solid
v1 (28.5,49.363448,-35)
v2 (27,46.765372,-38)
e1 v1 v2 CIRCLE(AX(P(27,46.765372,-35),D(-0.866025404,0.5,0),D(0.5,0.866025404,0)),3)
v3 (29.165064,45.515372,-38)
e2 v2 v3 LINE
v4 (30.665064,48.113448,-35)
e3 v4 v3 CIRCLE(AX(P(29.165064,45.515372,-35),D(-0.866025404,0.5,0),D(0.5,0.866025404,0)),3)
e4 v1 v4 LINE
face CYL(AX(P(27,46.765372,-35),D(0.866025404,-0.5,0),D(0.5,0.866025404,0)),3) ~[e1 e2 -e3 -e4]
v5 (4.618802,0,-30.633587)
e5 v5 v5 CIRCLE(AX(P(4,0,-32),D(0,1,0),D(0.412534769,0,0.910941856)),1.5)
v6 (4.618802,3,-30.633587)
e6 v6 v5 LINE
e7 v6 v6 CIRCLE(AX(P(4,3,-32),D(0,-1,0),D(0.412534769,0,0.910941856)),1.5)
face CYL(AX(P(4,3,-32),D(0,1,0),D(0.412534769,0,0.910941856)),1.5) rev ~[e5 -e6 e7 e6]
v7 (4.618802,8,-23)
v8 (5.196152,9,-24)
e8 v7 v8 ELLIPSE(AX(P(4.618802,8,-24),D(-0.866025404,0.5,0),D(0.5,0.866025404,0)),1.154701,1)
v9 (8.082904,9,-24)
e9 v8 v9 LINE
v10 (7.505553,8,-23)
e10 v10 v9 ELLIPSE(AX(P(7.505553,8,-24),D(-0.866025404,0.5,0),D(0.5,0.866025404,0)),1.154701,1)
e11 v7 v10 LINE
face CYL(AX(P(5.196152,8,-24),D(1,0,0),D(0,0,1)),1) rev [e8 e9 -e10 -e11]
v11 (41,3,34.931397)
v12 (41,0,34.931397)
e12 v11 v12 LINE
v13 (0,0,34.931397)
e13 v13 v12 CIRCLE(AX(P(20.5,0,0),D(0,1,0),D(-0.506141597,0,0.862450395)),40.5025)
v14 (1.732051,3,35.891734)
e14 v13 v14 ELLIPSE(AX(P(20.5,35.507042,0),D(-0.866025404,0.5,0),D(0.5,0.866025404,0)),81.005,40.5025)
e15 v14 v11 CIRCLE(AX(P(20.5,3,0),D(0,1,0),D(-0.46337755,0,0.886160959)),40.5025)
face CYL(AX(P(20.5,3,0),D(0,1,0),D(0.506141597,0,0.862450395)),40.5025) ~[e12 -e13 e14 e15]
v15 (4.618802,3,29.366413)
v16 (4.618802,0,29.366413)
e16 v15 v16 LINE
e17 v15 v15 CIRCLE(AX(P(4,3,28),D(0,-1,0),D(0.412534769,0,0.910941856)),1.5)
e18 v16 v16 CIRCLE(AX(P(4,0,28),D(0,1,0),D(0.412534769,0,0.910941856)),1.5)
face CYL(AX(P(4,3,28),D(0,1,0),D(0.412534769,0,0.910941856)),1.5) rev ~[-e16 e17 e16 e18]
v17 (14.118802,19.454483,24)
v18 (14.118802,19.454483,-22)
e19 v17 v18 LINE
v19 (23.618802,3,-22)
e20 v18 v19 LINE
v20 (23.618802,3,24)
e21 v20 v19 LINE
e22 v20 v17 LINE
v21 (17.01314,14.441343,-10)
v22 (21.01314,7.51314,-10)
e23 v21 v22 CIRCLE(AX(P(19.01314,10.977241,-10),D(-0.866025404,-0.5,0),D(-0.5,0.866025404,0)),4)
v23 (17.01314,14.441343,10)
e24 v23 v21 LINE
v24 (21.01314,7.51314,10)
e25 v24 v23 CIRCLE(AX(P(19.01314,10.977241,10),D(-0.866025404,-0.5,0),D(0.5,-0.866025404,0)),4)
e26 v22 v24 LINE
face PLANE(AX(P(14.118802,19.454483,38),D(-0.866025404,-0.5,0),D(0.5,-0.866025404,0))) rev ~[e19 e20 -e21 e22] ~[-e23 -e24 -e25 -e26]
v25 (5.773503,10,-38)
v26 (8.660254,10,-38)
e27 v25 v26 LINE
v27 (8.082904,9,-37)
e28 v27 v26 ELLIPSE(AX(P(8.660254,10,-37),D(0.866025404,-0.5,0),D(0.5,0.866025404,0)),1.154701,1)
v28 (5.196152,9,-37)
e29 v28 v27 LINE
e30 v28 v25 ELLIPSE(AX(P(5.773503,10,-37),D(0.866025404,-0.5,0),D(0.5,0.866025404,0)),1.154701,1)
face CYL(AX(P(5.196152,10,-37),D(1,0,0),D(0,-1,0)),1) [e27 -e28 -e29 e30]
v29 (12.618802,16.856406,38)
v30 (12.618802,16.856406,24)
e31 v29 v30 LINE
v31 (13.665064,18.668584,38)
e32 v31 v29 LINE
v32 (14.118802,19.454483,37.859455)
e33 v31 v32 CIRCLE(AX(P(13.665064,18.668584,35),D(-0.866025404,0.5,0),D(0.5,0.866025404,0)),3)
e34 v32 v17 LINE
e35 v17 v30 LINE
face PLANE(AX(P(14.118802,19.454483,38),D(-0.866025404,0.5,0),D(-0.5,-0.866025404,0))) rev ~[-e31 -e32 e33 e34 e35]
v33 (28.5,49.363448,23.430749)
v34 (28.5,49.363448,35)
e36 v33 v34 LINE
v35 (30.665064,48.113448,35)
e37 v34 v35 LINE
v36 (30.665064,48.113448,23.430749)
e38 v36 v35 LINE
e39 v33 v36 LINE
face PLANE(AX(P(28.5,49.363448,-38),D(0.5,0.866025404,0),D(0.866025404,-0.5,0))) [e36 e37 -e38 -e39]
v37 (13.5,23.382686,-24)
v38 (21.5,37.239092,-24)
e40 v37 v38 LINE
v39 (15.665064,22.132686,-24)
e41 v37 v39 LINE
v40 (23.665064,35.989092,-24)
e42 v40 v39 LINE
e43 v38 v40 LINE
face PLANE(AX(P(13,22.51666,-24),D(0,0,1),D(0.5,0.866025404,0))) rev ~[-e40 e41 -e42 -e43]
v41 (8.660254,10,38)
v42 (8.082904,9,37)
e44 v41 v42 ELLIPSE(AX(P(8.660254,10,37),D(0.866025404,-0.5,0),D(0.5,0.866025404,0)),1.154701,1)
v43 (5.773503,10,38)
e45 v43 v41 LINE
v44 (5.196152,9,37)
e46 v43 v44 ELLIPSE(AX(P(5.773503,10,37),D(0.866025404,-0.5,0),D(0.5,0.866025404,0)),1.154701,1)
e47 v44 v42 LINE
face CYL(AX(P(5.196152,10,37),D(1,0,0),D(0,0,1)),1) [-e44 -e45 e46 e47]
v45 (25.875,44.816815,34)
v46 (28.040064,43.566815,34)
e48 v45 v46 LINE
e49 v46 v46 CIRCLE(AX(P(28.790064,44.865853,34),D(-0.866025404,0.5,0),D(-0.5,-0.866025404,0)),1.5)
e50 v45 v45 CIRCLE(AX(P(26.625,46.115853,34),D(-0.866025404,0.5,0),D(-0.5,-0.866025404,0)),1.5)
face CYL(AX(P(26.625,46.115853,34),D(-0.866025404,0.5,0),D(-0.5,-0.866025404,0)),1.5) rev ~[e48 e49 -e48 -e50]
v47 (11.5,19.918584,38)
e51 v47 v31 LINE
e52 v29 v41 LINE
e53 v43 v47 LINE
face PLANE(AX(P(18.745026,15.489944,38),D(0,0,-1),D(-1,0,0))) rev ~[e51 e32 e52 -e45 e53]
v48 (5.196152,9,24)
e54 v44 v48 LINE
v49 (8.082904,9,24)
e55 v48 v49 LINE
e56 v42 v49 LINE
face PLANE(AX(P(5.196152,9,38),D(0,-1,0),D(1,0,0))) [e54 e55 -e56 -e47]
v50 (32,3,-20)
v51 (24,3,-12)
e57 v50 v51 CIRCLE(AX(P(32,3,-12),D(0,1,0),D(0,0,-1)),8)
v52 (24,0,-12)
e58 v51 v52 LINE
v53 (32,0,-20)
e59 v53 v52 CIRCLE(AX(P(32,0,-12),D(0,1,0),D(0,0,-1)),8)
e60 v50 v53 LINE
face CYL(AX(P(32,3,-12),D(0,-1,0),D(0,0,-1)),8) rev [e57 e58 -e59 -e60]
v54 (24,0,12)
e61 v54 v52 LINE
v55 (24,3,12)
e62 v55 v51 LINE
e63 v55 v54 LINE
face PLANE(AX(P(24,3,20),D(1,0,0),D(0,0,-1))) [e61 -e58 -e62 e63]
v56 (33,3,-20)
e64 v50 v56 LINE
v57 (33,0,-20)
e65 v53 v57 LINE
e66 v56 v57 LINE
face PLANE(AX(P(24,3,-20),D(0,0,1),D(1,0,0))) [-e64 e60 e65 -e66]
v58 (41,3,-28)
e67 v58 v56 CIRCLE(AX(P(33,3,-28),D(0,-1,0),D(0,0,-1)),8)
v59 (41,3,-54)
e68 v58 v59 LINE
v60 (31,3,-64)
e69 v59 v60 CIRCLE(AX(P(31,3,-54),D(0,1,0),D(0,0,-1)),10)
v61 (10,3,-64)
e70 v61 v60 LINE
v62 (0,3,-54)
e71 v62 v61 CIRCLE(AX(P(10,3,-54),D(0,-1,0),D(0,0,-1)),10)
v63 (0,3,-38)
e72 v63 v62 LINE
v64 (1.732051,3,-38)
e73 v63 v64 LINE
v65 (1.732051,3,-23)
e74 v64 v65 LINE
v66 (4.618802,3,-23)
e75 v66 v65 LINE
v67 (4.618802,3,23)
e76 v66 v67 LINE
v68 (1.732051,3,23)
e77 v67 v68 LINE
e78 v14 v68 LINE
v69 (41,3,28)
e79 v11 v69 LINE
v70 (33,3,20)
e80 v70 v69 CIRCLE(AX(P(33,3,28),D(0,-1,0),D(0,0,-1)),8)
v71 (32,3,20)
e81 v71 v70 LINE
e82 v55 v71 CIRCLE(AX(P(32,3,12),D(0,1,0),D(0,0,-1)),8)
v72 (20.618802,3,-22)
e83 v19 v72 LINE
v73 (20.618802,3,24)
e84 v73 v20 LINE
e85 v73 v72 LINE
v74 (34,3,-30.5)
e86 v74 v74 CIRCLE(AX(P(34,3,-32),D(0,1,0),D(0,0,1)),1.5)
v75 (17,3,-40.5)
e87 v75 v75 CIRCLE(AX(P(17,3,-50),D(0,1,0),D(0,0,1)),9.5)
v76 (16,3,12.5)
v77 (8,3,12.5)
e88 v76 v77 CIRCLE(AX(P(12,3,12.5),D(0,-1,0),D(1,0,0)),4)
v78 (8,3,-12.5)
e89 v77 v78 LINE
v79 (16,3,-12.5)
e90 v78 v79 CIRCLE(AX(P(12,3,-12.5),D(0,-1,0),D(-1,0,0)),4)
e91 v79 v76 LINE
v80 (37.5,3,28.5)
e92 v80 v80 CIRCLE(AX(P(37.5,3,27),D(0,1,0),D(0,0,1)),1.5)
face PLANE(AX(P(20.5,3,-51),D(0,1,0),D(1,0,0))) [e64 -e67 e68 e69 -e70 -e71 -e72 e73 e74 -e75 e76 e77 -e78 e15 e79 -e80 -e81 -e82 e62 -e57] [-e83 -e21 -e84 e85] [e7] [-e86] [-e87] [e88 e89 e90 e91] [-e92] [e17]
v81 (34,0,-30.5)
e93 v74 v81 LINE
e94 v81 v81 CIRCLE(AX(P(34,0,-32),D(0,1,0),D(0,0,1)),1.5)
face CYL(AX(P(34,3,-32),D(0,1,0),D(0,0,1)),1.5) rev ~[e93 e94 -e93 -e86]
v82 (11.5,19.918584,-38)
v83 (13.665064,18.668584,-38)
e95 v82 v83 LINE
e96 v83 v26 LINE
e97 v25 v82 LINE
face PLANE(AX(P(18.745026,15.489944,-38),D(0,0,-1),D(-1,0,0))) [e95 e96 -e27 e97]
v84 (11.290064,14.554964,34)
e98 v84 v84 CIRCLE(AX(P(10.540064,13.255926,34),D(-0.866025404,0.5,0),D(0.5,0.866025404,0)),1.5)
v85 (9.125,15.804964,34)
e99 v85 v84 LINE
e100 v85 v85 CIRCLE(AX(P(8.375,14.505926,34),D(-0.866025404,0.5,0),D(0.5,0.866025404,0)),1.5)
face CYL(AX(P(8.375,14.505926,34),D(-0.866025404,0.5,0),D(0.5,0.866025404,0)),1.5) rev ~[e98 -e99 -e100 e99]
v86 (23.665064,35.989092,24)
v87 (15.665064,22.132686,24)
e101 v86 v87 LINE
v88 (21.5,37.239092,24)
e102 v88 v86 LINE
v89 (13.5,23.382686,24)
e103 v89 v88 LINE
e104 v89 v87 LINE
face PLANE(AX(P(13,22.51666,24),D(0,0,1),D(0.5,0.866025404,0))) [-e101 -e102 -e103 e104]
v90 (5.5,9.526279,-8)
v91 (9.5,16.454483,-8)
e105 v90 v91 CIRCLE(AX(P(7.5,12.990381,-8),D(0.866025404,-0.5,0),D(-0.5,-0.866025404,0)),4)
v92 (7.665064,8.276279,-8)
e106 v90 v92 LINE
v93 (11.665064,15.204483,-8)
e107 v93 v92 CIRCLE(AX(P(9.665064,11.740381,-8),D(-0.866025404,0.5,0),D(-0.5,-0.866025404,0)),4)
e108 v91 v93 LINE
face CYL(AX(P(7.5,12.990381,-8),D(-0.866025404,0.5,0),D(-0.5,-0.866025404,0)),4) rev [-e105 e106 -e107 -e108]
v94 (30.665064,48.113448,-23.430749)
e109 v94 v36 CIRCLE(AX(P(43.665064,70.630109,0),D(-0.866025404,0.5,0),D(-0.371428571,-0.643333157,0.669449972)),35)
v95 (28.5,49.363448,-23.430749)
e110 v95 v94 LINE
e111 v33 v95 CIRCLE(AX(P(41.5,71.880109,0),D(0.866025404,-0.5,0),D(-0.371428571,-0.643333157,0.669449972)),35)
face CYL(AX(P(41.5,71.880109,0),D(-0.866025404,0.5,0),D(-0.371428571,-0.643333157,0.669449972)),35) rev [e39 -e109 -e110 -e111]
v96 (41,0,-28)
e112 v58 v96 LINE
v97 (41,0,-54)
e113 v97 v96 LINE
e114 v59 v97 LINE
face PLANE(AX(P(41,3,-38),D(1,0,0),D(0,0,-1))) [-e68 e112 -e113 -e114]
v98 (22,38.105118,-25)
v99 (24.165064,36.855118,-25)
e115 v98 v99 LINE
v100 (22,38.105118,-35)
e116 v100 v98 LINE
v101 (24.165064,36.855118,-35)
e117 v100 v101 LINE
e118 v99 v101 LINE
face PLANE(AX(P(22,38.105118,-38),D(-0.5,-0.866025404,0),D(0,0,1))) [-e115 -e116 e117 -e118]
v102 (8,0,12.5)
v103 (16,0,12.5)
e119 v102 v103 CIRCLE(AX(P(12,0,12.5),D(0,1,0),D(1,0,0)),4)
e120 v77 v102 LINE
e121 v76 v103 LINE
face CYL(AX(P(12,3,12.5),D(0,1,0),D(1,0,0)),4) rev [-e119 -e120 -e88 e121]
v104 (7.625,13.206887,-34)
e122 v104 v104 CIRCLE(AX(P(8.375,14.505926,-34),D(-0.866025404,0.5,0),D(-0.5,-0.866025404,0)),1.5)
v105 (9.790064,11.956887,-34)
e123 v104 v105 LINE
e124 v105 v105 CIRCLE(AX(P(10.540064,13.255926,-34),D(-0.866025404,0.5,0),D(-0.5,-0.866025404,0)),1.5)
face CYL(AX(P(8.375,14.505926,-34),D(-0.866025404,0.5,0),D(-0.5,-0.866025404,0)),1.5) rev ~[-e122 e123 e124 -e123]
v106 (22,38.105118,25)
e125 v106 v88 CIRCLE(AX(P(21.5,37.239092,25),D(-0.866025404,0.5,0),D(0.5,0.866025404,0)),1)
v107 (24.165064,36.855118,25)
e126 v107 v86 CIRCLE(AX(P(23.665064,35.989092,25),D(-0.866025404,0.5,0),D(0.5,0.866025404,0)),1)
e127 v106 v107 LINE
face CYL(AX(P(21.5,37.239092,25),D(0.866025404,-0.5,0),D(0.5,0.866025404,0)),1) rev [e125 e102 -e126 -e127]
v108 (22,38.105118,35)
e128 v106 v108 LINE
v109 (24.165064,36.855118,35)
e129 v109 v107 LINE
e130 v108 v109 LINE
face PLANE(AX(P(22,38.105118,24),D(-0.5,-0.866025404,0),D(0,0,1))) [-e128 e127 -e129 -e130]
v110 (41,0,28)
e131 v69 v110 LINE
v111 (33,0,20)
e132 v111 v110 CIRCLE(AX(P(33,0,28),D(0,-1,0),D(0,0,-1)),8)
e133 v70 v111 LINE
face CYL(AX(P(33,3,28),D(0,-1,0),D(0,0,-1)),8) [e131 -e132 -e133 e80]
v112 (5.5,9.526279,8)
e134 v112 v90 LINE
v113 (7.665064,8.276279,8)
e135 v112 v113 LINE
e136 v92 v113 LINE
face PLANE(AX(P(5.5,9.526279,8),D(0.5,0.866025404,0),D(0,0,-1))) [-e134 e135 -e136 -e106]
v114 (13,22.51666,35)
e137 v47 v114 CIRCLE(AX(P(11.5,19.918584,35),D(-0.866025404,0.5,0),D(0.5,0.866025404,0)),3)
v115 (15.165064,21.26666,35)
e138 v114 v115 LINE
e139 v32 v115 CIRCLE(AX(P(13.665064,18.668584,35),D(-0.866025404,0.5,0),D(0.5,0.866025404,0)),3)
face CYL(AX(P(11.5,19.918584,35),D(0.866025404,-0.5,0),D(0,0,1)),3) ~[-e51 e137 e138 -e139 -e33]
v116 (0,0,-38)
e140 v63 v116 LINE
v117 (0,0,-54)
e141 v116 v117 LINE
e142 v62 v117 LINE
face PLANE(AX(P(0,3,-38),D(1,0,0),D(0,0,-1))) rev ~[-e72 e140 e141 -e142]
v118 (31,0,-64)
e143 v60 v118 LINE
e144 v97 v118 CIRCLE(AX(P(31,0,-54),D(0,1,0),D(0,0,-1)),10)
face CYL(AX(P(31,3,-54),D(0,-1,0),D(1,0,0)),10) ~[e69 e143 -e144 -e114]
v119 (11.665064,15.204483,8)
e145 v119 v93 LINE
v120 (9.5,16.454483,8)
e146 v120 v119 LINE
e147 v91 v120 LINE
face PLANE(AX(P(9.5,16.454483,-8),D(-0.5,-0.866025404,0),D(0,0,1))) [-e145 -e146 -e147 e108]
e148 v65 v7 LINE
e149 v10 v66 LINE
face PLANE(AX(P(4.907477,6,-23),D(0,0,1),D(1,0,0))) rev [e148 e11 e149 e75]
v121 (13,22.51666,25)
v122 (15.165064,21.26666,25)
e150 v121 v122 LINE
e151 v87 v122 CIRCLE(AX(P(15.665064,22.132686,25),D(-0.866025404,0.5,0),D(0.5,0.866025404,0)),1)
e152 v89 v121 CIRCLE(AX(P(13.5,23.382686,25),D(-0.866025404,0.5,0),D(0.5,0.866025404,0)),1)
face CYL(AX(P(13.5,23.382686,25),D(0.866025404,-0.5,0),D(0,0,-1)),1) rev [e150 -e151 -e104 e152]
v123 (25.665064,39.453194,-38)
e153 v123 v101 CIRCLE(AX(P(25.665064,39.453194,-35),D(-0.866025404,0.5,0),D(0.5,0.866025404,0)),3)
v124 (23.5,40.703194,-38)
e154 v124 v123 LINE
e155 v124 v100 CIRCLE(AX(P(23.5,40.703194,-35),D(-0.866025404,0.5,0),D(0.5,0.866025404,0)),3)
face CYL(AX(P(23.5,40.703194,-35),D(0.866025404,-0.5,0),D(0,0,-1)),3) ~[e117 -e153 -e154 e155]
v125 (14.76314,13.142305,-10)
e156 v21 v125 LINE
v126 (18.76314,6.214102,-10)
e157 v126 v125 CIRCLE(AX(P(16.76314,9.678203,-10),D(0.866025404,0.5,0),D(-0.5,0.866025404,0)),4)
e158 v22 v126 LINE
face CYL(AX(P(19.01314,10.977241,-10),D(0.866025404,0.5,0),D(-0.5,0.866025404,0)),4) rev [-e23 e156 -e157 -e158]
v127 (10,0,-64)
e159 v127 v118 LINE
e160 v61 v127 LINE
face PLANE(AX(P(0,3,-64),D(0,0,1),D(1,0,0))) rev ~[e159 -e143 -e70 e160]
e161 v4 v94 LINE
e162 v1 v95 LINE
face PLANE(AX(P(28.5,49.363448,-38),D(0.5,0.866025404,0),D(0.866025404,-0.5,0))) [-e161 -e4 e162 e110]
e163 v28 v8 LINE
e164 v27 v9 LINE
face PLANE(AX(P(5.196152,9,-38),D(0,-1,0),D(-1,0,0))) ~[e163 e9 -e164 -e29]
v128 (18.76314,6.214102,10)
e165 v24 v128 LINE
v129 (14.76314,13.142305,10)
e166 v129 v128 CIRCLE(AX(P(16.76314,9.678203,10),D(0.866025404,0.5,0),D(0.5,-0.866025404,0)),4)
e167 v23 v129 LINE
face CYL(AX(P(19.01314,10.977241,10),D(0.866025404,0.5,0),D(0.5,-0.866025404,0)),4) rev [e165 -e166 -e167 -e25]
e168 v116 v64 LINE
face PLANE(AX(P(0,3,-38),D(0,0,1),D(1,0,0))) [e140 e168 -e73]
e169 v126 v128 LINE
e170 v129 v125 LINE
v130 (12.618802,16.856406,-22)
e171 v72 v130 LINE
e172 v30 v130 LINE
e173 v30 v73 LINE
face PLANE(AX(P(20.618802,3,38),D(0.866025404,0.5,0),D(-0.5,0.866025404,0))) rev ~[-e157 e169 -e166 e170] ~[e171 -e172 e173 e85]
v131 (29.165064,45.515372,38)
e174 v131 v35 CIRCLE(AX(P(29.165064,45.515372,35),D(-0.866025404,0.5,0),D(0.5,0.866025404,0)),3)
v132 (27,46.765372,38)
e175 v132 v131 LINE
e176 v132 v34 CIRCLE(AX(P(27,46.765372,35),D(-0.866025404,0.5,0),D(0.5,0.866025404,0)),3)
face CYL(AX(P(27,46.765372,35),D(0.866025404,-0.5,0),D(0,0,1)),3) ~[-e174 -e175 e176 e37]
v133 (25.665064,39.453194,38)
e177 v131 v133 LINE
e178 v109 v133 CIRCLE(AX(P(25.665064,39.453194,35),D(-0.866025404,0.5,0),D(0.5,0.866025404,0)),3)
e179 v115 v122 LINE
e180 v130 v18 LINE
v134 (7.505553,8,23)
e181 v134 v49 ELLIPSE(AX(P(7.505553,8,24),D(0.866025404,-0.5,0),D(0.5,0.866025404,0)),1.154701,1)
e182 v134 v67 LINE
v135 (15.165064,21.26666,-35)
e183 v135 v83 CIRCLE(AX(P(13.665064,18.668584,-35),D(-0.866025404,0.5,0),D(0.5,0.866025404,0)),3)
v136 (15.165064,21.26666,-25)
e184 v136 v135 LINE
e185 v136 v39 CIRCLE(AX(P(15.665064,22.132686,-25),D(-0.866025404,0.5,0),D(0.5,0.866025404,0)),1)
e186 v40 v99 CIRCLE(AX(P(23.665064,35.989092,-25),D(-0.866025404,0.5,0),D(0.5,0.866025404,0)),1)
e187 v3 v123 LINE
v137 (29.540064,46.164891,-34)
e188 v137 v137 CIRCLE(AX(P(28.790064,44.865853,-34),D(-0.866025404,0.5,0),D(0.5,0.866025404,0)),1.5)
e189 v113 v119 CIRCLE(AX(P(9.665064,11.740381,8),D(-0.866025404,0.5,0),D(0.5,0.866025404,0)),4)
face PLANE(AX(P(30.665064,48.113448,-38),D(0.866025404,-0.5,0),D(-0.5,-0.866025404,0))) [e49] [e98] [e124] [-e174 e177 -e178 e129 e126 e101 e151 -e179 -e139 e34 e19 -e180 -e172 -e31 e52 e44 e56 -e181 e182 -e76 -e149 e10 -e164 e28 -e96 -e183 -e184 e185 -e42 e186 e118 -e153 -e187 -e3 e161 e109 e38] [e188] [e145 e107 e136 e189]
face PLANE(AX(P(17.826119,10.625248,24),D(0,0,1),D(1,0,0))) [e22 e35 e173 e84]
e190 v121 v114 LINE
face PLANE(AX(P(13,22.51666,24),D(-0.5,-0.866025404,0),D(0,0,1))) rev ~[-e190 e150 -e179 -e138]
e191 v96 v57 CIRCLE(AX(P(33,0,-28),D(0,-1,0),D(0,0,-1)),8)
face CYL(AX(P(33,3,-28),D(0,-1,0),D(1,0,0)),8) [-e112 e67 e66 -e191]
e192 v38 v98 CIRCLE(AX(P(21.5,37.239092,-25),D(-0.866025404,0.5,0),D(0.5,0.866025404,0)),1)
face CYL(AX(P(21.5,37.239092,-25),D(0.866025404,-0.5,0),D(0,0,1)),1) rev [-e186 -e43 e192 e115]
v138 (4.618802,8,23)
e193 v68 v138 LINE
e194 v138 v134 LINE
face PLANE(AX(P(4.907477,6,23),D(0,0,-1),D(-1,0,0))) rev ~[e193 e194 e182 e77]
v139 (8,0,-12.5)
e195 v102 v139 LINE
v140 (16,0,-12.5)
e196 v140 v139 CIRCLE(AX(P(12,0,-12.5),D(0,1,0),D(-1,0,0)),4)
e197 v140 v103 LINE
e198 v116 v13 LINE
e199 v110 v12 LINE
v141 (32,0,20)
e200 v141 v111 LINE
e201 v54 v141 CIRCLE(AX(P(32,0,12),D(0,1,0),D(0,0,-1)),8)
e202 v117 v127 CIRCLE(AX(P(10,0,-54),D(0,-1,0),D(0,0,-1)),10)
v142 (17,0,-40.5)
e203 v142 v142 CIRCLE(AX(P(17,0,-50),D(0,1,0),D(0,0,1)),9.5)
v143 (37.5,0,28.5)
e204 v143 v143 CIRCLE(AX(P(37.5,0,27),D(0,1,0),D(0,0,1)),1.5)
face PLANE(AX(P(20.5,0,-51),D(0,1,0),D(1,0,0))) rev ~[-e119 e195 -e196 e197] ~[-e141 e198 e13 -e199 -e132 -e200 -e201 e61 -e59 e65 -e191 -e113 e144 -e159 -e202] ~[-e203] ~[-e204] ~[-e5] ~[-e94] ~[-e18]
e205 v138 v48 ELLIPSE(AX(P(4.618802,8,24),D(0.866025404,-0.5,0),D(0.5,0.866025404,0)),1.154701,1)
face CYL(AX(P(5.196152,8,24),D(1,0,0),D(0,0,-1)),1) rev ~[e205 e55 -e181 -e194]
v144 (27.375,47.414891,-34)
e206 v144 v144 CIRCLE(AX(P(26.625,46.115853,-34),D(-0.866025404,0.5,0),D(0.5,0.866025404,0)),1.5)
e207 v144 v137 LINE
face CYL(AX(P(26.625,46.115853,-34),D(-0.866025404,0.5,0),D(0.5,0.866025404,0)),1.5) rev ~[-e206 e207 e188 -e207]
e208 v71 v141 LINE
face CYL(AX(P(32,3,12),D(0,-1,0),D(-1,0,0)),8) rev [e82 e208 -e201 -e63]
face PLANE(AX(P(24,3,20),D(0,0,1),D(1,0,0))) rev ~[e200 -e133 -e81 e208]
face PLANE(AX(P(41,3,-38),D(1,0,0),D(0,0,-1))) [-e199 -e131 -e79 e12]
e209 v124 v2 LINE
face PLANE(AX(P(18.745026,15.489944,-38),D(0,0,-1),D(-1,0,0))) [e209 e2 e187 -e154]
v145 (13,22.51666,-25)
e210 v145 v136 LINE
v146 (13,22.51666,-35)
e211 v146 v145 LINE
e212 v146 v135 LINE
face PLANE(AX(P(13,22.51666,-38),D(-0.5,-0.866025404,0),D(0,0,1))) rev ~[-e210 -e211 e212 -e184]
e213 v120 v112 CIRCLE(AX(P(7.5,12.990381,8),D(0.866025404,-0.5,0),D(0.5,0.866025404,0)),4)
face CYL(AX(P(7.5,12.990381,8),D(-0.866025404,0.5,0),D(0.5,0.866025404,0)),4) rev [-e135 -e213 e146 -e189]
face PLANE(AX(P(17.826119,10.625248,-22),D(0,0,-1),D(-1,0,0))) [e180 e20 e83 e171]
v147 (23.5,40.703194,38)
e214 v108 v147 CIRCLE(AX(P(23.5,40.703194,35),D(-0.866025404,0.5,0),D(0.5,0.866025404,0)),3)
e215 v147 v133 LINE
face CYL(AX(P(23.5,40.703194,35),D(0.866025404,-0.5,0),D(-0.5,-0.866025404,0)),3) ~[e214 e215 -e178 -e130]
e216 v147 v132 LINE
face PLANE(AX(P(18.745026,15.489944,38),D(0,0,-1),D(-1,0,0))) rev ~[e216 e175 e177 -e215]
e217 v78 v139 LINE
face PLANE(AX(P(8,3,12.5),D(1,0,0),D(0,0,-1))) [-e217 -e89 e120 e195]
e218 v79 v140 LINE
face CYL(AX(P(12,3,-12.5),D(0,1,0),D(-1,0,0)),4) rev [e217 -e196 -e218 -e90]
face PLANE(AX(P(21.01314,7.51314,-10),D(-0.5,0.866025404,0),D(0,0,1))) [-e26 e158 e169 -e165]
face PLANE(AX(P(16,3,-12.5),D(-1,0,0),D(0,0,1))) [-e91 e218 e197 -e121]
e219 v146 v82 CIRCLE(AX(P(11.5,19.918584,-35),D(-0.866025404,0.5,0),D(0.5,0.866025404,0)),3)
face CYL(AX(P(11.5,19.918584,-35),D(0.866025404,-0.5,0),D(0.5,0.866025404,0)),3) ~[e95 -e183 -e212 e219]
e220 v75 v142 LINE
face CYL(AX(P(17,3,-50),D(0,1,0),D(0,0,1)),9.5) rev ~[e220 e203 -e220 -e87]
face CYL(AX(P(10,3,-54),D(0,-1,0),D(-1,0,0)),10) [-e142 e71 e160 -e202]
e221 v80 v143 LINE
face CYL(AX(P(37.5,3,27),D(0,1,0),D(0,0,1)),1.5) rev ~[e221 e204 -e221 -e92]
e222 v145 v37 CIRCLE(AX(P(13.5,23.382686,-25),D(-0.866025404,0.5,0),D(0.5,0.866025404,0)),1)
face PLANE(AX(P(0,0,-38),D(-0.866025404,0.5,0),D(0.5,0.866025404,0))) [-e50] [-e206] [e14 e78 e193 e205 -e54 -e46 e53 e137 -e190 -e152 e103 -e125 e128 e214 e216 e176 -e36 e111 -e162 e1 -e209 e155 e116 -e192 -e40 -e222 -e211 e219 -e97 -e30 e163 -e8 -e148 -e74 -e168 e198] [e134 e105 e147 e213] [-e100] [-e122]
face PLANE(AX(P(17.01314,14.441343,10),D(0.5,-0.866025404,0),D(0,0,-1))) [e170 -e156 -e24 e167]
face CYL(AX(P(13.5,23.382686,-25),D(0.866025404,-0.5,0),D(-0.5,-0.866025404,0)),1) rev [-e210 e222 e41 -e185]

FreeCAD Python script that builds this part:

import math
import FreeCAD as App
import Part
import Sketcher

V = App.Vector
Q = App.Units.Quantity


def edges_at(feature, points):
    """Names of the edges that pass closest to the given points."""
    edges = feature.Shape.Edges
    near = lambda p: min(range(len(edges)), key=lambda i: edges[i].distToShape(Part.Vertex(*p))[0])
    return sorted({f"Edge{near(p) + 1}" for p in points})

doc = App.newDocument("Part")
params = doc.addObject("Spreadsheet::Sheet", "Params")
for row, (alias, value) in enumerate([
    ("sketch1_width", "41 mm"),
    ("sketch1_height", "3 mm"),
    ("sketch1_length", "57 mm"),
    ("sketch1_length2", "2.5 mm"),
    ("pad1_length", "38 mm"),
    ("pad1_length2", "38 mm"),
    ("sketch2_width", "3 mm"),
    ("sketch2_length", "16 mm"),
    ("pad2_length", "60 mm"),
    ("sketch3_diameter", "3 mm"),
    ("sketch3_width", "14 mm"),
    ("sketch3_height", "18 mm"),
    ("pocket1_length", "6 mm"),
    ("sketch4_width", "3 mm"),
    ("sketch4_length", "19 mm"),
    ("pocket2_length", "14 mm"),
    ("fillet_radius", "3 mm"),
    ("sketch5_radius", "4 mm"),
    ("sketch5_width", "20 mm"),
    ("pocket3_length", "3 mm"),
    ("sketch6_diameter", "3 mm"),
    ("pocket4_length", "10 mm"),
    ("pocket5_length", "15 mm"),
    ("sketch8_diameter", "19 mm"),
    ("sketch8_diameter2", "3 mm"),
    ("sketch8_width", "41 mm"),
    ("sketch8_height", "26 mm"),
    ("pad3_length", "3 mm"),
    ("fillet2_radius", "10 mm"),
    ("sketch9_radius", "4 mm"),
    ("sketch9_width", "17 mm"),
    ("sketch9_height", "40 mm"),
    ("sketch9_height2", "25 mm"),
    ("pocket6_length", "10 mm"),
    ("fillet3_radius", "8 mm"),
    ("sketch10_radius", "35 mm"),
    ("sketch10_radius2", "4 mm"),
    ("sketch10_width", "16 mm"),
    ("pocket7_length", "4 mm"),
    ("fillet4_radius", "1 mm"),
    ("sketch11_width", "41 mm"),
    ("pocket8_length", "10 mm"),
], start=1):
    params.set(f"A{row}", alias)
    params.set(f"B{row}", "=" + value)
    params.setAlias(f"B{row}", alias)

body = doc.addObject("PartDesign::Body", "Body")

sketch1 = body.newObject("Sketcher::SketchObject", "Sketch")
sketch1.AttachmentSupport = (doc.getObject("XY_Plane"), [""])
sketch1.MapMode = "FlatFace"
sketch1.addGeometry(Part.LineSegment(V(28.5, 49.4, 0), V(0, 0, 0)), False)
sketch1.addGeometry(Part.LineSegment(V(0, 0, 0), V(41, 0, 0)), False)
sketch1.addGeometry(Part.LineSegment(V(41, 0, 0), V(41, 3, 0)), False)
sketch1.addGeometry(Part.LineSegment(V(41, 3, 0), V(4.6, 3, 0)), False)
sketch1.addGeometry(Part.LineSegment(V(4.6, 3, 0), V(30.7, 48.1, 0)), False)
sketch1.addGeometry(Part.LineSegment(V(30.7, 48.1, 0), V(28.5, 49.4, 0)), False)
sketch1.addConstraint(Sketcher.Constraint("Coincident", 0, 2, 1, 1))
sketch1.addConstraint(Sketcher.Constraint("Coincident", 1, 2, 2, 1))
sketch1.addConstraint(Sketcher.Constraint("Coincident", 2, 2, 3, 1))
sketch1.addConstraint(Sketcher.Constraint("Coincident", 3, 2, 4, 1))
sketch1.addConstraint(Sketcher.Constraint("Coincident", 4, 2, 5, 1))
sketch1.addConstraint(Sketcher.Constraint("Coincident", 5, 2, 0, 1))
sketch1.addConstraint(Sketcher.Constraint("Horizontal", 1))
sketch1.addConstraint(Sketcher.Constraint("Vertical", 2))
sketch1.addConstraint(Sketcher.Constraint("Horizontal", 3))
sketch1.addConstraint(Sketcher.Constraint("Coincident", 0, 2, -1, 1))
sketch1.addConstraint(Sketcher.Constraint("Parallel", 0, 4))
sketch1.addConstraint(Sketcher.Constraint("Perpendicular", 4, 5))
sketch1.addConstraint(Sketcher.Constraint("DistanceX", 1, 1, 1, 2, Q("41 mm")))
sketch1.addConstraint(Sketcher.Constraint("DistanceY", 2, 1, 2, 2, Q("3 mm")))
sketch1.addConstraint(Sketcher.Constraint("Angle", 0, Q("-120 deg")))
sketch1.addConstraint(Sketcher.Constraint("Distance", 0, Q("57 mm")))
sketch1.addConstraint(Sketcher.Constraint("Distance", 5, Q("2.5 mm")))
sketch1.setExpression("Constraints[12]", "Params.sketch1_width")
sketch1.setExpression("Constraints[13]", "Params.sketch1_height")
sketch1.setExpression("Constraints[15]", "Params.sketch1_length")
sketch1.setExpression("Constraints[16]", "Params.sketch1_length2")
pad1 = body.newObject("PartDesign::Pad", "Pad")
pad1.Profile = sketch1
pad1.Type = "TwoLengths"
pad1.setExpression("Length", "Params.pad1_length")
pad1.setExpression("Length2", "Params.pad1_length2")

sketch2 = body.newObject("Sketcher::SketchObject", "Sketch001")
sketch2.AttachmentSupport = (doc.getObject("XY_Plane"), [""])
sketch2.MapMode = "FlatFace"
sketch2.AttachmentOffset = App.Placement(V(0, 0, 38), App.Rotation())
sketch2.addGeometry(Part.LineSegment(V(14.1, 19.5, 0), V(12.6, 16.9, 0)), False)
sketch2.addGeometry(Part.LineSegment(V(12.6, 16.9, 0), V(20.6, 3, 0)), False)
sketch2.addGeometry(Part.LineSegment(V(20.6, 3, 0), V(23.6, 3, 0)), False)
sketch2.addGeometry(Part.LineSegment(V(23.6, 3, 0), V(14.1, 19.5, 0)), False)
sketch2.addConstraint(Sketcher.Constraint("Coincident", 0, 2, 1, 1))
sketch2.addConstraint(Sketcher.Constraint("Coincident", 1, 2, 2, 1))
sketch2.addConstraint(Sketcher.Constraint("Coincident", 2, 2, 3, 1))
sketch2.addConstraint(Sketcher.Constraint("Coincident", 3, 2, 0, 1))
sketch2.addConstraint(Sketcher.Constraint("Horizontal", 2))
sketch2.addConstraint(Sketcher.Constraint("Parallel", 1, 3))
sketch2.addConstraint(Sketcher.Constraint("DistanceX", 2, 1, 2, 2, Q("3 mm")))
sketch2.addConstraint(Sketcher.Constraint("Angle", 0, Q("-120 deg")))
sketch2.addConstraint(Sketcher.Constraint("Angle", 1, Q("-60 deg")))
sketch2.addConstraint(Sketcher.Constraint("Distance", 1, Q("16 mm")))
sketch2.addConstraint(Sketcher.Constraint("DistanceY", -1, 1, 1, 2, Q("3 mm")))
sketch2.addConstraint(Sketcher.Constraint("DistanceX", -1, 1, 0, 2, Q("12.618802 mm")))
sketch2.setExpression("Constraints[6]", "Params.sketch2_width")
sketch2.setExpression("Constraints[9]", "Params.sketch2_length")
pad2 = body.newObject("PartDesign::Pad", "Pad001")
pad2.Profile = sketch2
pad2.setExpression("Length", "Params.pad2_length")
pad2.Reversed = True

sketch3 = body.newObject("Sketcher::SketchObject", "Sketch002")
sketch3.Placement = App.Placement(V(0, 0, 0), App.Rotation(V(0, 0, 1), V(0.5, 0.866025404, 0), V(-0.866025404, 0.5, 0), "ZXY"))
sketch3.addGeometry(Part.Circle(V(34, 53.3, 0), V(0, 0, 1), 1.5), False)
sketch3.addGeometry(Part.Circle(V(34, 16.8, 0), V(0, 0, 1), 1.5), False)
sketch3.addGeometry(Part.Circle(V(-34, 16.8, 0), V(0, 0, 1), 1.5), False)
sketch3.addGeometry(Part.Circle(V(-34, 53.3, 0), V(0, 0, 1), 1.5), False)
sketch3.addGeometry(Part.LineSegment(V(24, 44, 0), V(24, 26, 0)), False)
sketch3.addGeometry(Part.LineSegment(V(24, 26, 0), V(38, 26, 0)), False)
sketch3.addGeometry(Part.LineSegment(V(38, 26, 0), V(38, 44, 0)), False)
sketch3.addGeometry(Part.LineSegment(V(38, 44, 0), V(24, 44, 0)), False)
sketch3.addGeometry(Part.LineSegment(V(-38, 44, 0), V(-38, 26, 0)), False)
sketch3.addGeometry(Part.LineSegment(V(-38, 26, 0), V(-24, 26, 0)), False)
sketch3.addGeometry(Part.LineSegment(V(-24, 26, 0), V(-24, 44, 0)), False)
sketch3.addGeometry(Part.LineSegment(V(-24, 44, 0), V(-38, 44, 0)), False)
sketch3.addConstraint(Sketcher.Constraint("Coincident", 4, 2, 5, 1))
sketch3.addConstraint(Sketcher.Constraint("Coincident", 5, 2, 6, 1))
sketch3.addConstraint(Sketcher.Constraint("Coincident", 6, 2, 7, 1))
sketch3.addConstraint(Sketcher.Constraint("Coincident", 7, 2, 4, 1))
sketch3.addConstraint(Sketcher.Constraint("Coincident", 8, 2, 9, 1))
sketch3.addConstraint(Sketcher.Constraint("Coincident", 9, 2, 10, 1))
sketch3.addConstraint(Sketcher.Constraint("Coincident", 10, 2, 11, 1))
sketch3.addConstraint(Sketcher.Constraint("Coincident", 11, 2, 8, 1))
sketch3.addConstraint(Sketcher.Constraint("Vertical", 4))
sketch3.addConstraint(Sketcher.Constraint("Horizontal", 5))
sketch3.addConstraint(Sketcher.Constraint("Vertical", 6))
sketch3.addConstraint(Sketcher.Constraint("Horizontal", 7))
sketch3.addConstraint(Sketcher.Constraint("Vertical", 8))
sketch3.addConstraint(Sketcher.Constraint("Horizontal", 9))
sketch3.addConstraint(Sketcher.Constraint("Vertical", 10))
sketch3.addConstraint(Sketcher.Constraint("Horizontal", 11))
sketch3.addConstraint(Sketcher.Constraint("Equal", 0, 1))
sketch3.addConstraint(Sketcher.Constraint("Equal", 1, 2))
sketch3.addConstraint(Sketcher.Constraint("Equal", 2, 3))
sketch3.addConstraint(Sketcher.Constraint("Symmetric", 1, 3, 2, 3, -2))
sketch3.addConstraint(Sketcher.Constraint("Symmetric", 0, 3, 3, 3, -2))
sketch3.addConstraint(Sketcher.Constraint("Symmetric", 5, 2, 8, 2, -2))
sketch3.addConstraint(Sketcher.Constraint("Symmetric", 7, 2, 10, 2, -2))
sketch3.addConstraint(Sketcher.Constraint("Vertical", 0, 3, 1, 3))
sketch3.addConstraint(Sketcher.Constraint("Diameter", 0, Q("3 mm")))
sketch3.addConstraint(Sketcher.Constraint("DistanceX", 5, 1, 5, 2, Q("14 mm")))
sketch3.addConstraint(Sketcher.Constraint("DistanceY", 4, 2, 4, 1, Q("18 mm")))
sketch3.addConstraint(Sketcher.Constraint("DistanceX", -1, 1, 0, 3, Q("34 mm")))
sketch3.addConstraint(Sketcher.Constraint("DistanceX", -1, 1, 4, 2, Q("24 mm")))
sketch3.addConstraint(Sketcher.Constraint("DistanceY", -1, 1, 4, 2, Q("26 mm")))
sketch3.addConstraint(Sketcher.Constraint("DistanceY", 1, 3, 0, 3, Q("36.5 mm")))
sketch3.addConstraint(Sketcher.Constraint("DistanceY", -1, 1, 0, 3, Q("53.25 mm")))
sketch3.setExpression("Constraints[24]", "Params.sketch3_diameter")
sketch3.setExpression("Constraints[25]", "Params.sketch3_width")
sketch3.setExpression("Constraints[26]", "Params.sketch3_height")
pocket1 = body.newObject("PartDesign::Pocket", "Pocket")
pocket1.Profile = sketch3
pocket1.setExpression("Length", "Params.pocket1_length")

sketch4 = body.newObject("Sketcher::SketchObject", "Sketch003")
sketch4.AttachmentSupport = (doc.getObject("XY_Plane"), [""])
sketch4.MapMode = "FlatFace"
sketch4.AttachmentOffset = App.Placement(V(0, 0, 38), App.Rotation())
sketch4.addGeometry(Part.LineSegment(V(23.6, 3, 0), V(14.1, 19.5, 0)), False)
sketch4.addGeometry(Part.LineSegment(V(14.1, 19.5, 0), V(12.6, 16.9, 0)), False)
sketch4.addGeometry(Part.LineSegment(V(12.6, 16.9, 0), V(20.6, 3, 0)), False)
sketch4.addGeometry(Part.LineSegment(V(20.6, 3, 0), V(23.6, 3, 0)), False)
sketch4.addConstraint(Sketcher.Constraint("Coincident", 0, 2, 1, 1))
sketch4.addConstraint(Sketcher.Constraint("Coincident", 1, 2, 2, 1))
sketch4.addConstraint(Sketcher.Constraint("Coincident", 2, 2, 3, 1))
sketch4.addConstraint(Sketcher.Constraint("Coincident", 3, 2, 0, 1))
sketch4.addConstraint(Sketcher.Constraint("Horizontal", 3))
sketch4.addConstraint(Sketcher.Constraint("Parallel", 0, 2))
sketch4.addConstraint(Sketcher.Constraint("DistanceX", 3, 1, 3, 2, Q("3 mm")))
sketch4.addConstraint(Sketcher.Constraint("Angle", 0, Q("120 deg")))
sketch4.addConstraint(Sketcher.Constraint("Angle", 1, Q("-120 deg")))
sketch4.addConstraint(Sketcher.Constraint("Distance", 0, Q("19 mm")))
sketch4.addConstraint(Sketcher.Constraint("DistanceY", -1, 1, 2, 2, Q("3 mm")))
sketch4.addConstraint(Sketcher.Constraint("DistanceX", -1, 1, 0, 2, Q("14.118802 mm")))
sketch4.setExpression("Constraints[6]", "Params.sketch4_width")
sketch4.setExpression("Constraints[9]", "Params.sketch4_length")
pocket2 = body.newObject("PartDesign::Pocket", "Pocket001")
pocket2.Profile = sketch4
pocket2.setExpression("Length", "Params.pocket2_length")
doc.recompute()

fillet = body.newObject("PartDesign::Fillet", "Fillet")
fillet.Base = (pocket2, edges_at(pocket2, [
    (29.583, 48.738, 38),
    (29.583, 48.738, -38),
    (23.083, 37.48, 38),
    (14.083, 21.892, 38),
    (14.083, 21.892, -38),
    (23.083, 37.48, -38),
]))
fillet.setExpression("Radius", "Params.fillet_radius")

sketch5 = body.newObject("Sketcher::SketchObject", "Sketch004")
sketch5.Placement = App.Placement(V(19.01314, 10.977241, 0), App.Rotation(V(0, 0, -1), V(-0.5, 0.866025404, 0), V(0.866025404, 0.5, 0), "ZXY"))
sketch5.addGeometry(Part.LineSegment(V(10, 4, 0), V(-10, 4, 0)), False)
sketch5.addGeometry(Part.ArcOfCircle(Part.Circle(V(-10, 0, 0), V(0, 0, 1), 4), math.radians(90), math.radians(270)), False)
sketch5.addGeometry(Part.LineSegment(V(-10, -4, 0), V(10, -4, 0)), False)
sketch5.addGeometry(Part.ArcOfCircle(Part.Circle(V(10, 0, 0), V(0, 0, 1), 4), math.radians(-90), math.radians(90)), False)
sketch5.addConstraint(Sketcher.Constraint("Tangent", 0, 2, 1, 1))
sketch5.addConstraint(Sketcher.Constraint("Tangent", 1, 2, 2, 1))
sketch5.addConstraint(Sketcher.Constraint("Tangent", 2, 2, 3, 1))
sketch5.addConstraint(Sketcher.Constraint("Tangent", 3, 2, 0, 1))
sketch5.addConstraint(Sketcher.Constraint("Horizontal", 0))
sketch5.addConstraint(Sketcher.Constraint("Horizontal", 2))
sketch5.addConstraint(Sketcher.Constraint("Symmetric", 1, 3, 3, 3, -1, 1))
sketch5.addConstraint(Sketcher.Constraint("Radius", 1, Q("4 mm")))
sketch5.addConstraint(Sketcher.Constraint("DistanceX", 0, 2, 0, 1, Q("20 mm")))
sketch5.setExpression("Constraints[7]", "Params.sketch5_radius")
sketch5.setExpression("Constraints[8]", "Params.sketch5_width")
pocket3 = body.newObject("PartDesign::Pocket", "Pocket002")
pocket3.Profile = sketch5
pocket3.setExpression("Length", "Params.pocket3_length")

sketch6 = body.newObject("Sketcher::SketchObject", "Sketch005")
sketch6.AttachmentSupport = (doc.getObject("XZ_Plane"), [""])
sketch6.MapMode = "FlatFace"
sketch6.AttachmentOffset = App.Placement(V(0, 0, -3), App.Rotation())
sketch6.addGeometry(Part.Circle(V(37.5, 27, 0), V(0, 0, 1), 1.5), False)
sketch6.addGeometry(Part.Circle(V(4, 28, 0), V(0, 0, 1), 1.5), False)
sketch6.addGeometry(Part.Circle(V(34, -32, 0), V(0, 0, 1), 1.5), False)
sketch6.addGeometry(Part.Circle(V(4, -32, 0), V(0, 0, 1), 1.5), False)
sketch6.addConstraint(Sketcher.Constraint("Equal", 0, 1))
sketch6.addConstraint(Sketcher.Constraint("Equal", 1, 2))
sketch6.addConstraint(Sketcher.Constraint("Equal", 2, 3))
sketch6.addConstraint(Sketcher.Constraint("Horizontal", 2, 3, 3, 3))
sketch6.addConstraint(Sketcher.Constraint("Vertical", 1, 3, 3, 3))
sketch6.addConstraint(Sketcher.Constraint("Diameter", 0, Q("3 mm")))
sketch6.addConstraint(Sketcher.Constraint("DistanceY", -1, 1, 0, 3, Q("27 mm")))
sketch6.addConstraint(Sketcher.Constraint("DistanceX", -1, 1, 1, 3, Q("4 mm")))
sketch6.addConstraint(Sketcher.Constraint("DistanceY", -1, 1, 1, 3, Q("28 mm")))
sketch6.addConstraint(Sketcher.Constraint("DistanceX", -1, 1, 2, 3, Q("34 mm")))
sketch6.addConstraint(Sketcher.Constraint("DistanceY", 2, 3, -1, 1, Q("32 mm")))
sketch6.addConstraint(Sketcher.Constraint("DistanceX", -1, 1, 0, 3, Q("37.5 mm")))
sketch6.setExpression("Constraints[5]", "Params.sketch6_diameter")
pocket4 = body.newObject("PartDesign::Pocket", "Pocket003")
pocket4.Profile = sketch6
pocket4.setExpression("Length", "Params.pocket4_length")
pocket4.Reversed = True

sketch7 = body.newObject("Sketcher::SketchObject", "Sketch006")
sketch7.AttachmentSupport = (doc.getObject("XY_Plane"), [""])
sketch7.MapMode = "FlatFace"
sketch7.AttachmentOffset = App.Placement(V(0, 0, 38), App.Rotation())
sketch7.addGeometry(Part.LineSegment(V(1.7, 3, 0), V(4.6, 3, 0)), False)
sketch7.addGeometry(Part.LineSegment(V(4.6, 3, 0), V(8.1, 9, 0)), False)
sketch7.addGeometry(Part.LineSegment(V(8.1, 9, 0), V(5.2, 9, 0)), False)
sketch7.addGeometry(Part.LineSegment(V(5.2, 9, 0), V(1.7, 3, 0)), False)
sketch7.addConstraint(Sketcher.Constraint("Coincident", 0, 2, 1, 1))
sketch7.addConstraint(Sketcher.Constraint("Coincident", 1, 2, 2, 1))
sketch7.addConstraint(Sketcher.Constraint("Coincident", 2, 2, 3, 1))
sketch7.addConstraint(Sketcher.Constraint("Coincident", 3, 2, 0, 1))
sketch7.addConstraint(Sketcher.Constraint("Horizontal", 0))
sketch7.addConstraint(Sketcher.Constraint("Horizontal", 2))
sketch7.addConstraint(Sketcher.Constraint("Parallel", 1, 3))
sketch7.addConstraint(Sketcher.Constraint("Angle", 1, Q("60 deg")))
sketch7.addConstraint(Sketcher.Constraint("DistanceY", -1, 1, 0, 2, Q("3 mm")))
sketch7.addConstraint(Sketcher.Constraint("DistanceY", -1, 1, 1, 2, Q("9 mm")))
sketch7.addConstraint(Sketcher.Constraint("DistanceX", 0, 1, 0, 2, Q("2.886751 mm")))
sketch7.addConstraint(Sketcher.Constraint("DistanceX", -1, 1, 3, 2, Q("1.732051 mm")))
pocket5 = body.newObject("PartDesign::Pocket", "Pocket004")
pocket5.Profile = sketch7
pocket5.setExpression("Length", "Params.pocket5_length")
doc.recompute()

mirrored = body.newObject("PartDesign::Mirrored", "Mirrored")
mirrored.Originals = [pocket5]
mirrored.MirrorPlane = (doc.getObject("XY_Plane"), [""])
body.Tip = mirrored

sketch8 = body.newObject("Sketcher::SketchObject", "Sketch007")
sketch8.AttachmentSupport = (doc.getObject("XZ_Plane"), [""])
sketch8.MapMode = "FlatFace"
sketch8.AttachmentOffset = App.Placement(V(0, 0, -3), App.Rotation())
sketch8.addGeometry(Part.LineSegment(V(0, -64, 0), V(0, -38, 0)), False)
sketch8.addGeometry(Part.LineSegment(V(0, -38, 0), V(41, -38, 0)), False)
sketch8.addGeometry(Part.LineSegment(V(41, -38, 0), V(41, -64, 0)), False)
sketch8.addGeometry(Part.LineSegment(V(41, -64, 0), V(0, -64, 0)), False)
sketch8.addGeometry(Part.Circle(V(17, -50, 0), V(0, 0, 1), 9.5), False)
sketch8.addGeometry(Part.LineSegment(V(0, 38, 0), V(0, 64, 0)), False)
sketch8.addGeometry(Part.LineSegment(V(0, 64, 0), V(41, 64, 0)), False)
sketch8.addGeometry(Part.LineSegment(V(41, 64, 0), V(41, 38, 0)), False)
sketch8.addGeometry(Part.LineSegment(V(41, 38, 0), V(0, 38, 0)), False)
sketch8.addGeometry(Part.Circle(V(5, 55, 0), V(0, 0, 1), 1.5), False)
sketch8.addGeometry(Part.Circle(V(35, 55, 0), V(0, 0, 1), 1.5), False)
sketch8.addGeometry(Part.Circle(V(5, 45, 0), V(0, 0, 1), 1.5), False)
sketch8.addGeometry(Part.Circle(V(20, 50, 0), V(0, 0, 1), 9.5), False)
sketch8.addGeometry(Part.Circle(V(35, 45, 0), V(0, 0, 1), 1.5), False)
sketch8.addConstraint(Sketcher.Constraint("Coincident", 0, 2, 1, 1))
sketch8.addConstraint(Sketcher.Constraint("Coincident", 1, 2, 2, 1))
sketch8.addConstraint(Sketcher.Constraint("Coincident", 2, 2, 3, 1))
sketch8.addConstraint(Sketcher.Constraint("Coincident", 3, 2, 0, 1))
sketch8.addConstraint(Sketcher.Constraint("Coincident", 5, 2, 6, 1))
sketch8.addConstraint(Sketcher.Constraint("Coincident", 6, 2, 7, 1))
sketch8.addConstraint(Sketcher.Constraint("Coincident", 7, 2, 8, 1))
sketch8.addConstraint(Sketcher.Constraint("Coincident", 8, 2, 5, 1))
sketch8.addConstraint(Sketcher.Constraint("Vertical", 0))
sketch8.addConstraint(Sketcher.Constraint("Horizontal", 1))
sketch8.addConstraint(Sketcher.Constraint("Vertical", 2))
sketch8.addConstraint(Sketcher.Constraint("Horizontal", 3))
sketch8.addConstraint(Sketcher.Constraint("Vertical", 5))
sketch8.addConstraint(Sketcher.Constraint("Horizontal", 6))
sketch8.addConstraint(Sketcher.Constraint("Vertical", 7))
sketch8.addConstraint(Sketcher.Constraint("Horizontal", 8))
sketch8.addConstraint(Sketcher.Constraint("Equal", 9, 10))
sketch8.addConstraint(Sketcher.Constraint("Equal", 10, 11))
sketch8.addConstraint(Sketcher.Constraint("Equal", 4, 12))
sketch8.addConstraint(Sketcher.Constraint("Equal", 11, 13))
sketch8.addConstraint(Sketcher.Constraint("Symmetric", 3, 2, 5, 2, -1, 1))
sketch8.addConstraint(Sketcher.Constraint("Symmetric", 1, 2, 7, 2, -1))
sketch8.addConstraint(Sketcher.Constraint("PointOnObject", 0, 2, -2))
sketch8.addConstraint(Sketcher.Constraint("Horizontal", 9, 3, 10, 3))
sketch8.addConstraint(Sketcher.Constraint("Horizontal", 11, 3, 13, 3))
sketch8.addConstraint(Sketcher.Constraint("Vertical", 9, 3, 11, 3))
sketch8.addConstraint(Sketcher.Constraint("Vertical", 10, 3, 13, 3))
sketch8.addConstraint(Sketcher.Constraint("Diameter", 4, Q("19 mm")))
sketch8.addConstraint(Sketcher.Constraint("Diameter", 9, Q("3 mm")))
sketch8.addConstraint(Sketcher.Constraint("DistanceX", 1, 1, 1, 2, Q("41 mm")))
sketch8.addConstraint(Sketcher.Constraint("DistanceY", 0, 1, 0, 2, Q("26 mm")))
sketch8.addConstraint(Sketcher.Constraint("DistanceX", -1, 1, 4, 3, Q("17 mm")))
sketch8.addConstraint(Sketcher.Constraint("DistanceY", 4, 3, -1, 1, Q("50 mm")))
sketch8.addConstraint(Sketcher.Constraint("DistanceX", -1, 1, 9, 3, Q("5 mm")))
sketch8.addConstraint(Sketcher.Constraint("DistanceY", -1, 1, 9, 3, Q("55 mm")))
sketch8.addConstraint(Sketcher.Constraint("DistanceX", -1, 1, 10, 3, Q("35 mm")))
sketch8.addConstraint(Sketcher.Constraint("DistanceY", -1, 1, 11, 3, Q("45 mm")))
sketch8.addConstraint(Sketcher.Constraint("DistanceX", -1, 1, 12, 3, Q("20 mm")))
sketch8.addConstraint(Sketcher.Constraint("DistanceY", -1, 1, 12, 3, Q("50 mm")))
sketch8.addConstraint(Sketcher.Constraint("DistanceY", 0, 2, -1, 1, Q("38 mm")))
sketch8.setExpression("Constraints[27]", "Params.sketch8_diameter")
sketch8.setExpression("Constraints[28]", "Params.sketch8_diameter2")
sketch8.setExpression("Constraints[29]", "Params.sketch8_width")
sketch8.setExpression("Constraints[30]", "Params.sketch8_height")
pad3 = body.newObject("PartDesign::Pad", "Pad002")
pad3.Profile = sketch8
pad3.setExpression("Length", "Params.pad3_length")
doc.recompute()

fillet2 = body.newObject("PartDesign::Fillet", "Fillet001")
fillet2.Base = (pad3, edges_at(pad3, [
    (41, 1.5, -64),
    (0, 1.5, -64),
    (0, 1.5, 64),
    (41, 1.5, 64),
]))
fillet2.setExpression("Radius", "Params.fillet2_radius")

sketch9 = body.newObject("Sketcher::SketchObject", "Sketch008")
sketch9.AttachmentSupport = (doc.getObject("XZ_Plane"), [""])
sketch9.MapMode = "FlatFace"
sketch9.AttachmentOffset = App.Placement(V(0, 0, -3), App.Rotation())
sketch9.addGeometry(Part.LineSegment(V(24, -20, 0), V(24, 20, 0)), False)
sketch9.addGeometry(Part.LineSegment(V(24, 20, 0), V(41, 20, 0)), False)
sketch9.addGeometry(Part.LineSegment(V(41, 20, 0), V(41, -20, 0)), False)
sketch9.addGeometry(Part.LineSegment(V(41, -20, 0), V(24, -20, 0)), False)
sketch9.addGeometry(Part.LineSegment(V(8, -12.5, 0), V(8, 12.5, 0)), False)
sketch9.addGeometry(Part.ArcOfCircle(Part.Circle(V(12, 12.5, 0), V(0, 0, 1), 4), math.radians(0), math.radians(180)), False)
sketch9.addGeometry(Part.LineSegment(V(16, 12.5, 0), V(16, -12.5, 0)), False)
sketch9.addGeometry(Part.ArcOfCircle(Part.Circle(V(12, -12.5, 0), V(0, 0, 1), 4), math.radians(180), math.radians(360)), False)
sketch9.addConstraint(Sketcher.Constraint("Coincident", 0, 2, 1, 1))
sketch9.addConstraint(Sketcher.Constraint("Coincident", 1, 2, 2, 1))
sketch9.addConstraint(Sketcher.Constraint("Coincident", 2, 2, 3, 1))
sketch9.addConstraint(Sketcher.Constraint("Coincident", 3, 2, 0, 1))
sketch9.addConstraint(Sketcher.Constraint("Tangent", 4, 2, 5, 2))
sketch9.addConstraint(Sketcher.Constraint("Tangent", 5, 1, 6, 1))
sketch9.addConstraint(Sketcher.Constraint("Tangent", 6, 2, 7, 2))
sketch9.addConstraint(Sketcher.Constraint("Tangent", 7, 1, 4, 1))
sketch9.addConstraint(Sketcher.Constraint("Vertical", 0))
sketch9.addConstraint(Sketcher.Constraint("Horizontal", 1))
sketch9.addConstraint(Sketcher.Constraint("Vertical", 2))
sketch9.addConstraint(Sketcher.Constraint("Horizontal", 3))
sketch9.addConstraint(Sketcher.Constraint("Vertical", 4))
sketch9.addConstraint(Sketcher.Constraint("Vertical", 6))
sketch9.addConstraint(Sketcher.Constraint("Radius", 5, Q("4 mm")))
sketch9.addConstraint(Sketcher.Constraint("DistanceX", 1, 1, 1, 2, Q("17 mm")))
sketch9.addConstraint(Sketcher.Constraint("DistanceY", 0, 1, 0, 2, Q("40 mm")))
sketch9.addConstraint(Sketcher.Constraint("DistanceY", 4, 1, 4, 2, Q("25 mm")))
sketch9.addConstraint(Sketcher.Constraint("DistanceX", -1, 1, 5, 3, Q("12 mm")))
sketch9.addConstraint(Sketcher.Constraint("DistanceX", -1, 1, 0, 2, Q("24 mm")))
sketch9.addConstraint(Sketcher.Constraint("DistanceY", -1, 1, 0, 2, Q("20 mm")))
sketch9.addConstraint(Sketcher.Constraint("DistanceY", -1, 1, 5, 3, Q("12.5 mm")))
sketch9.setExpression("Constraints[14]", "Params.sketch9_radius")
sketch9.setExpression("Constraints[15]", "Params.sketch9_width")
sketch9.setExpression("Constraints[16]", "Params.sketch9_height")
sketch9.setExpression("Constraints[17]", "Params.sketch9_height2")
pocket6 = body.newObject("PartDesign::Pocket", "Pocket005")
pocket6.Profile = sketch9
pocket6.setExpression("Length", "Params.pocket6_length")
pocket6.Reversed = True
doc.recompute()

fillet3 = body.newObject("PartDesign::Fillet", "Fillet002")
fillet3.Base = (pocket6, edges_at(pocket6, [
    (41, 1.5, -20),
    (41, 1.5, 20),
    (24, 1.5, 20),
    (24, 1.5, -20),
]))
fillet3.setExpression("Radius", "Params.fillet3_radius")

sketch10 = body.newObject("Sketcher::SketchObject", "Sketch009")
sketch10.Placement = App.Placement(V(0, 0, 0), App.Rotation(V(0, 0, 1), V(0.5, 0.866025404, 0), V(-0.866025404, 0.5, 0), "ZXY"))
sketch10.addGeometry(Part.LineSegment(V(23.4, 57, 0), V(-23.4, 57, 0)), False)
sketch10.addGeometry(Part.ArcOfCircle(Part.Circle(V(0, 83, 0), V(0, 0, 1), 35), math.radians(-132), math.radians(-48)), False)
sketch10.addGeometry(Part.LineSegment(V(8, 19, 0), V(-8, 19, 0)), False)
sketch10.addGeometry(Part.ArcOfCircle(Part.Circle(V(-8, 15, 0), V(0, 0, 1), 4), math.radians(90), math.radians(270)), False)
sketch10.addGeometry(Part.LineSegment(V(-8, 11, 0), V(8, 11, 0)), False)
sketch10.addGeometry(Part.ArcOfCircle(Part.Circle(V(8, 15, 0), V(0, 0, 1), 4), math.radians(-90), math.radians(90)), False)
sketch10.addConstraint(Sketcher.Constraint("Coincident", 0, 1, 1, 2))
sketch10.addConstraint(Sketcher.Constraint("Coincident", 1, 1, 0, 2))
sketch10.addConstraint(Sketcher.Constraint("Tangent", 2, 2, 3, 1))
sketch10.addConstraint(Sketcher.Constraint("Tangent", 3, 2, 4, 1))
sketch10.addConstraint(Sketcher.Constraint("Tangent", 4, 2, 5, 1))
sketch10.addConstraint(Sketcher.Constraint("Tangent", 5, 2, 2, 1))
sketch10.addConstraint(Sketcher.Constraint("Horizontal", 0))
sketch10.addConstraint(Sketcher.Constraint("Horizontal", 2))
sketch10.addConstraint(Sketcher.Constraint("Horizontal", 4))
sketch10.addConstraint(Sketcher.Constraint("PointOnObject", 1, 3, -2))
sketch10.addConstraint(Sketcher.Constraint("Radius", 1, Q("35 mm")))
sketch10.addConstraint(Sketcher.Constraint("Radius", 3, Q("4 mm")))
sketch10.addConstraint(Sketcher.Constraint("DistanceX", 2, 2, 2, 1, Q("16 mm")))
sketch10.addConstraint(Sketcher.Constraint("DistanceY", -1, 1, 1, 3, Q("83 mm")))
sketch10.addConstraint(Sketcher.Constraint("DistanceX", 3, 3, -1, 1, Q("8 mm")))
sketch10.addConstraint(Sketcher.Constraint("DistanceY", -1, 1, 3, 3, Q("15 mm")))
sketch10.addConstraint(Sketcher.Constraint("DistanceY", -1, 1, 0, 1, Q("57 mm")))
sketch10.setExpression("Constraints[10]", "Params.sketch10_radius")
sketch10.setExpression("Constraints[11]", "Params.sketch10_radius2")
sketch10.setExpression("Constraints[12]", "Params.sketch10_width")
pocket7 = body.newObject("PartDesign::Pocket", "Pocket006")
pocket7.Profile = sketch10
pocket7.setExpression("Length", "Params.pocket7_length")
doc.recompute()

fillet4 = body.newObject("PartDesign::Fillet", "Fillet003")
fillet4.Base = (pocket7, edges_at(pocket7, [
    (6.64, 9, 23),
    (6.64, 9, 38),
    (6.64, 9, -38),
    (6.64, 9, -23),
    (14.083, 21.892, 24),
    (23.083, 37.48, 24),
    (23.083, 37.48, -24),
    (14.083, 21.892, -24),
]))
fillet4.setExpression("Radius", "Params.fillet4_radius")

sketch11 = body.newObject("Sketcher::SketchObject", "Sketch010")
sketch11.AttachmentSupport = (doc.getObject("XZ_Plane"), [""])
sketch11.MapMode = "FlatFace"
sketch11.AttachmentOffset = App.Placement(V(0, 0, -3), App.Rotation())
sketch11.addGeometry(Part.LineSegment(V(0, 35, 0), V(0, 66, 0)), False)
sketch11.addGeometry(Part.LineSegment(V(0, 66, 0), V(41, 66, 0)), False)
sketch11.addGeometry(Part.LineSegment(V(41, 66, 0), V(41, 35, 0)), False)
sketch11.addGeometry(Part.ArcOfCircle(Part.Circle(V(20, 0, 0), V(0, 0, 1), 41), math.radians(60), math.radians(120)), False)
sketch11.addConstraint(Sketcher.Constraint("Coincident", 0, 2, 1, 1))
sketch11.addConstraint(Sketcher.Constraint("Coincident", 1, 2, 2, 1))
sketch11.addConstraint(Sketcher.Constraint("Coincident", 2, 2, 3, 1))
sketch11.addConstraint(Sketcher.Constraint("Coincident", 3, 2, 0, 1))
sketch11.addConstraint(Sketcher.Constraint("Vertical", 0))
sketch11.addConstraint(Sketcher.Constraint("Horizontal", 1))
sketch11.addConstraint(Sketcher.Constraint("Vertical", 2))
sketch11.addConstraint(Sketcher.Constraint("PointOnObject", 3, 3, -1))
sketch11.addConstraint(Sketcher.Constraint("PointOnObject", 0, 2, -2))
sketch11.addConstraint(Sketcher.Constraint("Horizontal", 2, 2, 3, 2))
sketch11.addConstraint(Sketcher.Constraint("DistanceX", 1, 1, 1, 2, Q("41 mm")))
sketch11.addConstraint(Sketcher.Constraint("Radius", 3, Q("40.5025 mm")))
sketch11.addConstraint(Sketcher.Constraint("DistanceY", 0, 1, 0, 2, Q("31.045329 mm")))
sketch11.setExpression("Constraints[10]", "Params.sketch11_width")
pocket8 = body.newObject("PartDesign::Pocket", "Pocket007")
pocket8.Profile = sketch11
pocket8.setExpression("Length", "Params.pocket8_length")
pocket8.Reversed = True

doc.recompute()
